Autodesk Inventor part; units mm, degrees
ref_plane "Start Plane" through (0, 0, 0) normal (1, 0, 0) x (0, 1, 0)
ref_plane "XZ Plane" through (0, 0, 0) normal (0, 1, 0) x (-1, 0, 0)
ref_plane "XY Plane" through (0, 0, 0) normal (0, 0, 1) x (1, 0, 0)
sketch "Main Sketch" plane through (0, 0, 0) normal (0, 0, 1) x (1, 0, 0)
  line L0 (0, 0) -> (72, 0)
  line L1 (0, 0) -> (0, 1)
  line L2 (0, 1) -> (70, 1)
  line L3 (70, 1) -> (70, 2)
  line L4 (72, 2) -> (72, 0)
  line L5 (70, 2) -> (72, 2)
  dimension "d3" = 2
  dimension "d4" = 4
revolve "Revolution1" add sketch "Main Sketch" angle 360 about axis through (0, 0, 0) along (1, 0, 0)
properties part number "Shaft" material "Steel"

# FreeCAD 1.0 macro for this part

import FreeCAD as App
import Part
import Sketcher
from FreeCAD import Vector


def add_polygon(sketch, points):
    """Adds a closed chain of lines whose ends are joined by coincident constraints."""
    first, n = sketch.GeometryCount, len(points)
    for a, b in zip(points, points[1:] + points[:1]):
        sketch.addGeometry(Part.LineSegment(App.Vector(*a, 0), App.Vector(*b, 0)), False)
    for i in range(n):
        sketch.addConstraint(Sketcher.Constraint("Coincident", first + i, 2, first + (i + 1) % n, 1))

doc = App.newDocument("Part")
body = doc.addObject("PartDesign::Body", "Body")

# Sketch on XY plane
sketch1 = body.newObject("Sketcher::SketchObject", "Sketch")
sketch1.AttachmentSupport = (doc.getObject("XY_Plane"), [""])
sketch1.MapMode = "FlatFace"
add_polygon(sketch1, [(0, 1), (0, 0), (72, 0), (72, 2), (70, 2), (70, 1)])  # lines 0-5
sketch1.addConstraint([
    Sketcher.Constraint("Vertical", 0),
    Sketcher.Constraint("Horizontal", 1),
    Sketcher.Constraint("Vertical", 2),
    Sketcher.Constraint("Horizontal", 3),
    Sketcher.Constraint("Vertical", 4),
    Sketcher.Constraint("Horizontal", 5),
    Sketcher.Constraint("Coincident", 0, 2, -1, 1),
    Sketcher.Constraint("Equal", 3, 2),
    Sketcher.Constraint("Equal", 0, 4),
    Sketcher.Constraint("DistanceX", 3, 2, 3, 1, 2.0),
    Sketcher.Constraint("DistanceX", 1, 1, 1, 2, 72.0),
])
revolution = body.newObject("PartDesign::Revolution", "Revolution")
revolution.Profile = sketch1
revolution.ReferenceAxis = (sketch1, ["H_Axis"])
revolution.Angle = 360

doc.recompute()
